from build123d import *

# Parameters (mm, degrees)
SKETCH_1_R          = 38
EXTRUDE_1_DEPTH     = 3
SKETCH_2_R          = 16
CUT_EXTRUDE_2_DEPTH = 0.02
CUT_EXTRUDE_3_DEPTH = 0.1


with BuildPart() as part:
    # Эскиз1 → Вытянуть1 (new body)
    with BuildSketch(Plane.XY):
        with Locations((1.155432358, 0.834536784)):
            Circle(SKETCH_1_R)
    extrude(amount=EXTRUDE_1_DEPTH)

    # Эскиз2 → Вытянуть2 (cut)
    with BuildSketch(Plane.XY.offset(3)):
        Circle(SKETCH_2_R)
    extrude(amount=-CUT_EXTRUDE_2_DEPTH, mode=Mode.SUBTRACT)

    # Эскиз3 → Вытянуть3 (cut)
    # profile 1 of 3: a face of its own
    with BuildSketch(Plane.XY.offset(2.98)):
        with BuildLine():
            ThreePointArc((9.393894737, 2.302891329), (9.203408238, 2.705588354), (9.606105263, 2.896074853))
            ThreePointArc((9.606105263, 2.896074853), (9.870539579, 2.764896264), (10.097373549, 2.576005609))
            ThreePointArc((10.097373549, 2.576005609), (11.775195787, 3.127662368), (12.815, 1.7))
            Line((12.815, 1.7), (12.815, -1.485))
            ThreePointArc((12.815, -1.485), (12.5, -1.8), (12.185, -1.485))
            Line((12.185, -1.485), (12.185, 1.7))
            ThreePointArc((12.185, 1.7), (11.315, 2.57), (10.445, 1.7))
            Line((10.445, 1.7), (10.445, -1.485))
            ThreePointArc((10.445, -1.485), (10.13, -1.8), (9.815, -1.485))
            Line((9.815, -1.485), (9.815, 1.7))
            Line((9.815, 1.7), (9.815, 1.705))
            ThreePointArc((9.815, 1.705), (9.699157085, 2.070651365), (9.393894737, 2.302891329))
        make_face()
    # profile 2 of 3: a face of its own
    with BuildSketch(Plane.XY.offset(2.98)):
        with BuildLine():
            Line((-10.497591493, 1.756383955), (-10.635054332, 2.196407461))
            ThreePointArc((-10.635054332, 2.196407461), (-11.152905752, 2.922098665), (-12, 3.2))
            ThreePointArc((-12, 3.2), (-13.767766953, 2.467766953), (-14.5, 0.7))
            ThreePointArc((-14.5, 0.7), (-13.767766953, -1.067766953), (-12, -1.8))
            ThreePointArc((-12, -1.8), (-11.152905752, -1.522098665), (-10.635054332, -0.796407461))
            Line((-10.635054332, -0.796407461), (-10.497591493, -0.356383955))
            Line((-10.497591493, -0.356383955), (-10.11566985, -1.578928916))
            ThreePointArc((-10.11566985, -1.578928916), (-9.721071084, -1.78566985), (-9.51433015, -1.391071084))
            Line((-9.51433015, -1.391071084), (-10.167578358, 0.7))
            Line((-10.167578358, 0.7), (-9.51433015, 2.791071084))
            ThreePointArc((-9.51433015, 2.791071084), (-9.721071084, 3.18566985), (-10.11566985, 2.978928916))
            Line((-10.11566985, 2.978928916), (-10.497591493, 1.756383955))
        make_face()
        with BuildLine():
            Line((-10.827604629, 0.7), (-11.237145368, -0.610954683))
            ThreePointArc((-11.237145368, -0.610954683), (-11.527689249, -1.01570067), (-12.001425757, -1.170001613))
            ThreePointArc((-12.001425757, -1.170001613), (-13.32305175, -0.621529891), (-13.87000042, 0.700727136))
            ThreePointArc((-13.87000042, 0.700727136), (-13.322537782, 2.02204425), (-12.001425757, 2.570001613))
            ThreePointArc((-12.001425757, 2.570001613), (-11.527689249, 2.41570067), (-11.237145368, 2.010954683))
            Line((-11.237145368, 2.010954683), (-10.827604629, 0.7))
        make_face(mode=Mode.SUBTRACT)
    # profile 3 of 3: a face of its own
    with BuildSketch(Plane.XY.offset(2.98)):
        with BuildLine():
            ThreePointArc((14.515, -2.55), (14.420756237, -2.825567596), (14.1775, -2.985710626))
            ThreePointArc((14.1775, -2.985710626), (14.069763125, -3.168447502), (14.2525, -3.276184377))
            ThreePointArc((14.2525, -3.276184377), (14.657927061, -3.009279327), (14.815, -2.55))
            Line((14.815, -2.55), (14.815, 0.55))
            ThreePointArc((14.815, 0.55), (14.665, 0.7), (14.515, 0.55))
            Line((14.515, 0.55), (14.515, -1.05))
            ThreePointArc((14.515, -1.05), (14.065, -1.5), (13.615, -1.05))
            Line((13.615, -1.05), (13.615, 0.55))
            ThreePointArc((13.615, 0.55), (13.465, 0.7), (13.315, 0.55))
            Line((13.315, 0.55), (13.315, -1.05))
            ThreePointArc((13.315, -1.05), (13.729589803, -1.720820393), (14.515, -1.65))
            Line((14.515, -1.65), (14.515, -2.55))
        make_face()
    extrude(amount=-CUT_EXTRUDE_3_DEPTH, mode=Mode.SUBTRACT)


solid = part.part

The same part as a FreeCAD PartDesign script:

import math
import FreeCAD as App
import Part
import Sketcher
from FreeCAD import Vector
Q = App.Units.Quantity

doc = App.newDocument("Part")
body = doc.addObject("PartDesign::Body", "Body")

# Sketch on XY plane
sketch1 = body.newObject("Sketcher::SketchObject", "Sketch")
sketch1.AttachmentSupport = (doc.getObject("XY_Plane"), [""])
sketch1.MapMode = "FlatFace"
sketch1.addGeometry(Part.Circle(Vector(1, 1, 0), Vector(0, 0, 1), 38), False)
sketch1.addConstraint(Sketcher.Constraint("Diameter", 0, Q("76 mm")))
sketch1.addConstraint(Sketcher.Constraint("DistanceX", -1, 1, 0, 3, Q("1.155432 mm")))
sketch1.addConstraint(Sketcher.Constraint("DistanceY", -1, 1, 0, 3, Q("0.834537 mm")))
pad1 = body.newObject("PartDesign::Pad", "Pad")
pad1.Profile = sketch1
pad1.Length = 3

# Sketch on XY plane
sketch2 = body.newObject("Sketcher::SketchObject", "Sketch001")
sketch2.AttachmentSupport = (doc.getObject("XY_Plane"), [""])
sketch2.MapMode = "FlatFace"
sketch2.AttachmentOffset = App.Placement(Vector(0, 0, 3), App.Rotation())
sketch2.addGeometry(Part.Circle(Vector(0, 0, 0), Vector(0, 0, 1), 16), False)
sketch2.addConstraint(Sketcher.Constraint("Coincident", 0, 3, -1, 1))
sketch2.addConstraint(Sketcher.Constraint("Diameter", 0, Q("32 mm")))
pocket1 = body.newObject("PartDesign::Pocket", "Pocket")
pocket1.Profile = sketch2
pocket1.Length = 0.02

# Sketch on XY plane
sketch3 = body.newObject("Sketcher::SketchObject", "Sketch002")
sketch3.AttachmentSupport = (doc.getObject("XY_Plane"), [""])
sketch3.MapMode = "FlatFace"
sketch3.AttachmentOffset = App.Placement(Vector(0, 0, 2.98), App.Rotation())
sketch3.addGeometry(Part.ArcOfCircle(Part.Circle(Vector(9.5, 2.6, 0), Vector(0, 0, 1), 0.32), math.radians(70), math.radians(250)), False)
sketch3.addGeometry(Part.ArcOfCircle(Part.Circle(Vector(9.18, 1.7, 0), Vector(0, 0, 1), 0.64), math.radians(0), math.radians(70)), False)
sketch3.addGeometry(Part.LineSegment(Vector(9.81, 1.71, 0), Vector(9.81, -1.49, 0)), False)
sketch3.addGeometry(Part.ArcOfCircle(Part.Circle(Vector(10.13, -1.49, 0), Vector(0, 0, 1), 0.32), math.radians(180), math.radians(360)), False)
sketch3.addGeometry(Part.LineSegment(Vector(10.45, -1.49, 0), Vector(10.45, 1.7, 0)), False)
sketch3.addGeometry(Part.ArcOfCircle(Part.Circle(Vector(11.31, 1.7, 0), Vector(0, 0, 1), 0.87), math.radians(0), math.radians(180)), False)
sketch3.addGeometry(Part.LineSegment(Vector(12.19, 1.7, 0), Vector(12.19, -1.49, 0)), False)
sketch3.addGeometry(Part.ArcOfCircle(Part.Circle(Vector(12.5, -1.49, 0), Vector(0, 0, 1), 0.32), math.radians(180), math.radians(360)), False)
sketch3.addGeometry(Part.LineSegment(Vector(12.81, -1.49, 0), Vector(12.81, 1.7, 0)), False)
sketch3.addGeometry(Part.ArcOfCircle(Part.Circle(Vector(11.31, 1.7, 0), Vector(0, 0, 1), 1.5), math.radians(0), math.radians(144)), False)
sketch3.addGeometry(Part.ArcOfCircle(Part.Circle(Vector(9.18, 1.71, 0), Vector(0, 0, 1), 1.26), math.radians(44), math.radians(70)), False)
sketch3.addGeometry(Part.LineSegment(Vector(-10.5, 1.76, 0), Vector(-10.64, 2.2, 0)), False)
sketch3.addGeometry(Part.ArcOfCircle(Part.Circle(Vector(-12, 1.77, 0), Vector(0, 0, 1), 1.43), math.radians(17), math.radians(90)), False)
sketch3.addGeometry(Part.ArcOfCircle(Part.Circle(Vector(-12, 0.7, 0), Vector(0, 0, 1), 2.5), math.radians(90), math.radians(180)), False)
sketch3.addGeometry(Part.ArcOfCircle(Part.Circle(Vector(-12, 0.7, 0), Vector(0, 0, 1), 2.5), math.radians(180), math.radians(270)), False)
sketch3.addGeometry(Part.ArcOfCircle(Part.Circle(Vector(-12, -0.37, 0), Vector(0, 0, 1), 1.43), math.radians(-90), math.radians(-17)), False)
sketch3.addGeometry(Part.LineSegment(Vector(-10.64, -0.8, 0), Vector(-10.5, -0.36, 0)), False)
sketch3.addGeometry(Part.LineSegment(Vector(-10.5, -0.36, 0), Vector(-10.12, -1.58, 0)), False)
sketch3.addGeometry(Part.ArcOfCircle(Part.Circle(Vector(-9.81, -1.49, 0), Vector(0, 0, 1), 0.32), math.radians(-163), math.radians(17)), False)
sketch3.addGeometry(Part.LineSegment(Vector(-9.51, -1.39, 0), Vector(-10.17, 0.7, 0)), False)
sketch3.addGeometry(Part.LineSegment(Vector(-10.17, 0.7, 0), Vector(-9.51, 2.79, 0)), False)
sketch3.addGeometry(Part.ArcOfCircle(Part.Circle(Vector(-9.81, 2.88, 0), Vector(0, 0, 1), 0.32), math.radians(-17), math.radians(163)), False)
sketch3.addGeometry(Part.LineSegment(Vector(-10.12, 2.98, 0), Vector(-10.5, 1.76, 0)), False)
sketch3.addGeometry(Part.LineSegment(Vector(-11.24, 2.01, 0), Vector(-10.83, 0.7, 0)), False)
sketch3.addGeometry(Part.LineSegment(Vector(-10.83, 0.7, 0), Vector(-11.24, -0.61, 0)), False)
sketch3.addGeometry(Part.ArcOfCircle(Part.Circle(Vector(-12, -0.37, 0), Vector(0, 0, 1), 0.8), math.radians(-90), math.radians(-18)), False)
sketch3.addGeometry(Part.ArcOfCircle(Part.Circle(Vector(-12, 0.7, 0), Vector(0, 0, 1), 1.87), math.radians(180), math.radians(270)), False)
sketch3.addGeometry(Part.ArcOfCircle(Part.Circle(Vector(-12, 0.7, 0), Vector(0, 0, 1), 1.87), math.radians(90), math.radians(180)), False)
sketch3.addGeometry(Part.ArcOfCircle(Part.Circle(Vector(-12, 1.77, 0), Vector(0, 0, 1), 0.8), math.radians(18), math.radians(90)), False)
sketch3.addGeometry(Part.ArcOfCircle(Part.Circle(Vector(14.07, -2.55, 0), Vector(0, 0, 1), 0.45), math.radians(-76), math.radians(0)), False)
sketch3.addGeometry(Part.ArcOfCircle(Part.Circle(Vector(14.21, -3.13, 0), Vector(0, 0, 1), 0.15), math.radians(104), math.radians(284)), False)
sketch3.addGeometry(Part.ArcOfCircle(Part.Circle(Vector(14.07, -2.55, 0), Vector(0, 0, 1), 0.75), math.radians(-76), math.radians(0)), False)
sketch3.addGeometry(Part.LineSegment(Vector(14.81, -2.55, 0), Vector(14.81, 0.55, 0)), False)
sketch3.addGeometry(Part.ArcOfCircle(Part.Circle(Vector(14.66, 0.55, 0), Vector(0, 0, 1), 0.15), math.radians(0), math.radians(180)), False)
sketch3.addGeometry(Part.LineSegment(Vector(14.52, 0.55, 0), Vector(14.52, -1.05, 0)), False)
sketch3.addGeometry(Part.ArcOfCircle(Part.Circle(Vector(14.06, -1.05, 0), Vector(0, 0, 1), 0.45), math.radians(180), math.radians(360)), False)
sketch3.addGeometry(Part.LineSegment(Vector(13.62, -1.05, 0), Vector(13.62, 0.55, 0)), False)
sketch3.addGeometry(Part.ArcOfCircle(Part.Circle(Vector(13.46, 0.55, 0), Vector(0, 0, 1), 0.15), math.radians(0), math.radians(180)), False)
sketch3.addGeometry(Part.LineSegment(Vector(13.31, 0.55, 0), Vector(13.31, -1.05, 0)), False)
sketch3.addGeometry(Part.ArcOfCircle(Part.Circle(Vector(14.06, -1.05, 0), Vector(0, 0, 1), 0.75), math.radians(180), math.radians(307)), False)
sketch3.addGeometry(Part.LineSegment(Vector(14.52, -1.65, 0), Vector(14.52, -2.55, 0)), False)
sketch3.addConstraint(Sketcher.Constraint("Tangent", 0, 2, 1, 2))
sketch3.addConstraint(Sketcher.Constraint("Tangent", 1, 1, 2, 1))
sketch3.addConstraint(Sketcher.Constraint("Tangent", 2, 2, 3, 1))
sketch3.addConstraint(Sketcher.Constraint("Tangent", 3, 2, 4, 1))
sketch3.addConstraint(Sketcher.Constraint("Tangent", 4, 2, 5, 2))
sketch3.addConstraint(Sketcher.Constraint("Tangent", 5, 1, 6, 1))
sketch3.addConstraint(Sketcher.Constraint("Tangent", 6, 2, 7, 1))
sketch3.addConstraint(Sketcher.Constraint("Tangent", 7, 2, 8, 1))
sketch3.addConstraint(Sketcher.Constraint("Tangent", 8, 2, 9, 1))
sketch3.addConstraint(Sketcher.Constraint("Coincident", 9, 2, 10, 1))
sketch3.addConstraint(Sketcher.Constraint("Tangent", 10, 2, 0, 1))
sketch3.addConstraint(Sketcher.Constraint("Tangent", 11, 2, 12, 1))
sketch3.addConstraint(Sketcher.Constraint("Tangent", 12, 2, 13, 1))
sketch3.addConstraint(Sketcher.Constraint("Tangent", 13, 2, 14, 1))
sketch3.addConstraint(Sketcher.Constraint("Tangent", 14, 2, 15, 1))
sketch3.addConstraint(Sketcher.Constraint("Tangent", 15, 2, 16, 1))
sketch3.addConstraint(Sketcher.Constraint("Coincident", 16, 2, 17, 1))
sketch3.addConstraint(Sketcher.Constraint("Tangent", 17, 2, 18, 1))
sketch3.addConstraint(Sketcher.Constraint("Tangent", 18, 2, 19, 1))
sketch3.addConstraint(Sketcher.Constraint("Coincident", 19, 2, 20, 1))
sketch3.addConstraint(Sketcher.Constraint("Tangent", 20, 2, 21, 1))
sketch3.addConstraint(Sketcher.Constraint("Tangent", 21, 2, 22, 1))
sketch3.addConstraint(Sketcher.Constraint("Coincident", 22, 2, 11, 1))
sketch3.addConstraint(Sketcher.Constraint("Coincident", 23, 2, 24, 1))
sketch3.addConstraint(Sketcher.Constraint("Coincident", 24, 2, 25, 2))
sketch3.addConstraint(Sketcher.Constraint("Coincident", 25, 1, 26, 2))
sketch3.addConstraint(Sketcher.Constraint("Coincident", 26, 1, 27, 2))
sketch3.addConstraint(Sketcher.Constraint("Coincident", 27, 1, 28, 2))
sketch3.addConstraint(Sketcher.Constraint("Coincident", 28, 1, 23, 1))
sketch3.addConstraint(Sketcher.Constraint("Tangent", 29, 1, 30, 1))
sketch3.addConstraint(Sketcher.Constraint("Tangent", 30, 2, 31, 1))
sketch3.addConstraint(Sketcher.Constraint("Tangent", 31, 2, 32, 1))
sketch3.addConstraint(Sketcher.Constraint("Tangent", 32, 2, 33, 1))
sketch3.addConstraint(Sketcher.Constraint("Tangent", 33, 2, 34, 1))
sketch3.addConstraint(Sketcher.Constraint("Tangent", 34, 2, 35, 2))
sketch3.addConstraint(Sketcher.Constraint("Tangent", 35, 1, 36, 1))
sketch3.addConstraint(Sketcher.Constraint("Tangent", 36, 2, 37, 1))
sketch3.addConstraint(Sketcher.Constraint("Tangent", 37, 2, 38, 1))
sketch3.addConstraint(Sketcher.Constraint("Tangent", 38, 2, 39, 1))
sketch3.addConstraint(Sketcher.Constraint("Coincident", 39, 2, 40, 1))
sketch3.addConstraint(Sketcher.Constraint("Tangent", 40, 2, 29, 2))
sketch3.addConstraint(Sketcher.Constraint("Vertical", 2))
sketch3.addConstraint(Sketcher.Constraint("Vertical", 4))
sketch3.addConstraint(Sketcher.Constraint("Vertical", 6))
sketch3.addConstraint(Sketcher.Constraint("Vertical", 8))
sketch3.addConstraint(Sketcher.Constraint("Vertical", 32))
sketch3.addConstraint(Sketcher.Constraint("Vertical", 34))
sketch3.addConstraint(Sketcher.Constraint("Vertical", 36))
sketch3.addConstraint(Sketcher.Constraint("Vertical", 38))
sketch3.addConstraint(Sketcher.Constraint("Vertical", 40))
sketch3.addConstraint(Sketcher.Constraint("Coincident", 9, 3, 5, 3))
sketch3.addConstraint(Sketcher.Constraint("Coincident", 10, 3, 1, 3))
sketch3.addConstraint(Sketcher.Constraint("Coincident", 25, 3, 15, 3))
sketch3.addConstraint(Sketcher.Constraint("Coincident", 26, 3, 13, 3))
sketch3.addConstraint(Sketcher.Constraint("Coincident", 27, 3, 13, 3))
sketch3.addConstraint(Sketcher.Constraint("Coincident", 28, 3, 12, 3))
sketch3.addConstraint(Sketcher.Constraint("Coincident", 31, 3, 29, 3))
sketch3.addConstraint(Sketcher.Constraint("Coincident", 39, 3, 35, 3))
sketch3.addConstraint(Sketcher.Constraint("Equal", 0, 3))
sketch3.addConstraint(Sketcher.Constraint("Equal", 3, 7))
sketch3.addConstraint(Sketcher.Constraint("Equal", 13, 14))
sketch3.addConstraint(Sketcher.Constraint("Equal", 12, 15))
sketch3.addConstraint(Sketcher.Constraint("Equal", 7, 18))
sketch3.addConstraint(Sketcher.Constraint("Equal", 18, 21))
sketch3.addConstraint(Sketcher.Constraint("Equal", 30, 33))
sketch3.addConstraint(Sketcher.Constraint("Equal", 29, 35))
sketch3.addConstraint(Sketcher.Constraint("Equal", 33, 37))
sketch3.addConstraint(Sketcher.Constraint("Parallel", 11, 17))
sketch3.addConstraint(Sketcher.Constraint("Parallel", 17, 19))
sketch3.addConstraint(Sketcher.Constraint("Parallel", 16, 20))
sketch3.addConstraint(Sketcher.Constraint("Parallel", 20, 22))
sketch3.addConstraint(Sketcher.Constraint("Parallel", 19, 23))
sketch3.addConstraint(Sketcher.Constraint("Parallel", 22, 24))
sketch3.addConstraint(Sketcher.Constraint("Horizontal", 3, 3, 7, 3))
sketch3.addConstraint(Sketcher.Constraint("Horizontal", 7, 3, 18, 3))
sketch3.addConstraint(Sketcher.Constraint("Horizontal", 33, 3, 37, 3))
sketch3.addConstraint(Sketcher.Constraint("Horizontal", 14, 3, 13, 2))
sketch3.addConstraint(Sketcher.Constraint("Horizontal", 13, 2, 19, 2))
sketch3.addConstraint(Sketcher.Constraint("Horizontal", 19, 2, 23, 2))
sketch3.addConstraint(Sketcher.Constraint("Vertical", 12, 3, 13, 3))
sketch3.addConstraint(Sketcher.Constraint("Vertical", 14, 3, 15, 3))
sketch3.addConstraint(Sketcher.Constraint("Vertical", 18, 3, 21, 3))
sketch3.addConstraint(Sketcher.Constraint("Vertical", 25, 1, 27, 1))
sketch3.addConstraint(Sketcher.Constraint("Vertical", 24, 2, 28, 1))
sketch3.addConstraint(Sketcher.Constraint("Radius", 9, Q("1.5 mm")))
sketch3.addConstraint(Sketcher.Constraint("Radius", 13, Q("2.5 mm")))
sketch3.addConstraint(Sketcher.Constraint("Radius", 25, Q("0.8 mm")))
sketch3.addConstraint(Sketcher.Constraint("Radius", 5, Q("0.87 mm")))
sketch3.addConstraint(Sketcher.Constraint("Radius", 12, Q("1.43 mm")))
sketch3.addConstraint(Sketcher.Constraint("Radius", 29, Q("0.45 mm")))
sketch3.addConstraint(Sketcher.Constraint("Radius", 30, Q("0.15 mm")))
sketch3.addConstraint(Sketcher.Constraint("DistanceY", 32, 1, 32, 2, Q("3.1 mm")))
sketch3.addConstraint(Sketcher.Constraint("DistanceY", 34, 2, 34, 1, Q("1.6 mm")))
sketch3.addConstraint(Sketcher.Constraint("DistanceX", 12, 3, -1, 1, Q("12 mm")))
sketch3.addConstraint(Sketcher.Constraint("Radius", 1, Q("0.635 mm")))
sketch3.addConstraint(Sketcher.Constraint("DistanceY", 2, 2, 2, 1, Q("3.19 mm")))
sketch3.addConstraint(Sketcher.Constraint("DistanceX", -1, 1, 0, 3, Q("9.5 mm")))
sketch3.addConstraint(Sketcher.Constraint("DistanceY", -1, 1, 5, 3, Q("1.7 mm")))
sketch3.addConstraint(Sketcher.Constraint("DistanceX", -1, 1, 7, 3, Q("12.5 mm")))
sketch3.addConstraint(Sketcher.Constraint("DistanceY", -1, 1, 13, 3, Q("0.7 mm")))
sketch3.addConstraint(Sketcher.Constraint("DistanceY", 4, 1, 4, 2, Q("3.185 mm")))
sketch3.addConstraint(Sketcher.Constraint("DistanceY", 29, 3, -1, 1, Q("2.55 mm")))
sketch3.addConstraint(Sketcher.Constraint("DistanceX", 18, 3, -1, 1, Q("9.815 mm")))
sketch3.addConstraint(Sketcher.Constraint("DistanceX", -1, 1, 29, 3, Q("14.065 mm")))
sketch3.addConstraint(Sketcher.Constraint("DistanceX", -1, 1, 30, 3, Q("14.215 mm")))
sketch3.addConstraint(Sketcher.Constraint("DistanceX", 16, 2, -1, 1, Q("10.497591 mm")))
sketch3.addConstraint(Sketcher.Constraint("Distance", 23, Q("1.373436 mm")))
sketch3.addConstraint(Sketcher.Constraint("DistanceX", 25, 1, -1, 1, Q("12.001426 mm")))
sketch3.addConstraint(Sketcher.Constraint("DistanceY", -1, 1, 26, 1, Q("0.700727 mm")))
pocket2 = body.newObject("PartDesign::Pocket", "Pocket001")
pocket2.Profile = sketch3
pocket2.Length = 0.1

doc.recompute()
